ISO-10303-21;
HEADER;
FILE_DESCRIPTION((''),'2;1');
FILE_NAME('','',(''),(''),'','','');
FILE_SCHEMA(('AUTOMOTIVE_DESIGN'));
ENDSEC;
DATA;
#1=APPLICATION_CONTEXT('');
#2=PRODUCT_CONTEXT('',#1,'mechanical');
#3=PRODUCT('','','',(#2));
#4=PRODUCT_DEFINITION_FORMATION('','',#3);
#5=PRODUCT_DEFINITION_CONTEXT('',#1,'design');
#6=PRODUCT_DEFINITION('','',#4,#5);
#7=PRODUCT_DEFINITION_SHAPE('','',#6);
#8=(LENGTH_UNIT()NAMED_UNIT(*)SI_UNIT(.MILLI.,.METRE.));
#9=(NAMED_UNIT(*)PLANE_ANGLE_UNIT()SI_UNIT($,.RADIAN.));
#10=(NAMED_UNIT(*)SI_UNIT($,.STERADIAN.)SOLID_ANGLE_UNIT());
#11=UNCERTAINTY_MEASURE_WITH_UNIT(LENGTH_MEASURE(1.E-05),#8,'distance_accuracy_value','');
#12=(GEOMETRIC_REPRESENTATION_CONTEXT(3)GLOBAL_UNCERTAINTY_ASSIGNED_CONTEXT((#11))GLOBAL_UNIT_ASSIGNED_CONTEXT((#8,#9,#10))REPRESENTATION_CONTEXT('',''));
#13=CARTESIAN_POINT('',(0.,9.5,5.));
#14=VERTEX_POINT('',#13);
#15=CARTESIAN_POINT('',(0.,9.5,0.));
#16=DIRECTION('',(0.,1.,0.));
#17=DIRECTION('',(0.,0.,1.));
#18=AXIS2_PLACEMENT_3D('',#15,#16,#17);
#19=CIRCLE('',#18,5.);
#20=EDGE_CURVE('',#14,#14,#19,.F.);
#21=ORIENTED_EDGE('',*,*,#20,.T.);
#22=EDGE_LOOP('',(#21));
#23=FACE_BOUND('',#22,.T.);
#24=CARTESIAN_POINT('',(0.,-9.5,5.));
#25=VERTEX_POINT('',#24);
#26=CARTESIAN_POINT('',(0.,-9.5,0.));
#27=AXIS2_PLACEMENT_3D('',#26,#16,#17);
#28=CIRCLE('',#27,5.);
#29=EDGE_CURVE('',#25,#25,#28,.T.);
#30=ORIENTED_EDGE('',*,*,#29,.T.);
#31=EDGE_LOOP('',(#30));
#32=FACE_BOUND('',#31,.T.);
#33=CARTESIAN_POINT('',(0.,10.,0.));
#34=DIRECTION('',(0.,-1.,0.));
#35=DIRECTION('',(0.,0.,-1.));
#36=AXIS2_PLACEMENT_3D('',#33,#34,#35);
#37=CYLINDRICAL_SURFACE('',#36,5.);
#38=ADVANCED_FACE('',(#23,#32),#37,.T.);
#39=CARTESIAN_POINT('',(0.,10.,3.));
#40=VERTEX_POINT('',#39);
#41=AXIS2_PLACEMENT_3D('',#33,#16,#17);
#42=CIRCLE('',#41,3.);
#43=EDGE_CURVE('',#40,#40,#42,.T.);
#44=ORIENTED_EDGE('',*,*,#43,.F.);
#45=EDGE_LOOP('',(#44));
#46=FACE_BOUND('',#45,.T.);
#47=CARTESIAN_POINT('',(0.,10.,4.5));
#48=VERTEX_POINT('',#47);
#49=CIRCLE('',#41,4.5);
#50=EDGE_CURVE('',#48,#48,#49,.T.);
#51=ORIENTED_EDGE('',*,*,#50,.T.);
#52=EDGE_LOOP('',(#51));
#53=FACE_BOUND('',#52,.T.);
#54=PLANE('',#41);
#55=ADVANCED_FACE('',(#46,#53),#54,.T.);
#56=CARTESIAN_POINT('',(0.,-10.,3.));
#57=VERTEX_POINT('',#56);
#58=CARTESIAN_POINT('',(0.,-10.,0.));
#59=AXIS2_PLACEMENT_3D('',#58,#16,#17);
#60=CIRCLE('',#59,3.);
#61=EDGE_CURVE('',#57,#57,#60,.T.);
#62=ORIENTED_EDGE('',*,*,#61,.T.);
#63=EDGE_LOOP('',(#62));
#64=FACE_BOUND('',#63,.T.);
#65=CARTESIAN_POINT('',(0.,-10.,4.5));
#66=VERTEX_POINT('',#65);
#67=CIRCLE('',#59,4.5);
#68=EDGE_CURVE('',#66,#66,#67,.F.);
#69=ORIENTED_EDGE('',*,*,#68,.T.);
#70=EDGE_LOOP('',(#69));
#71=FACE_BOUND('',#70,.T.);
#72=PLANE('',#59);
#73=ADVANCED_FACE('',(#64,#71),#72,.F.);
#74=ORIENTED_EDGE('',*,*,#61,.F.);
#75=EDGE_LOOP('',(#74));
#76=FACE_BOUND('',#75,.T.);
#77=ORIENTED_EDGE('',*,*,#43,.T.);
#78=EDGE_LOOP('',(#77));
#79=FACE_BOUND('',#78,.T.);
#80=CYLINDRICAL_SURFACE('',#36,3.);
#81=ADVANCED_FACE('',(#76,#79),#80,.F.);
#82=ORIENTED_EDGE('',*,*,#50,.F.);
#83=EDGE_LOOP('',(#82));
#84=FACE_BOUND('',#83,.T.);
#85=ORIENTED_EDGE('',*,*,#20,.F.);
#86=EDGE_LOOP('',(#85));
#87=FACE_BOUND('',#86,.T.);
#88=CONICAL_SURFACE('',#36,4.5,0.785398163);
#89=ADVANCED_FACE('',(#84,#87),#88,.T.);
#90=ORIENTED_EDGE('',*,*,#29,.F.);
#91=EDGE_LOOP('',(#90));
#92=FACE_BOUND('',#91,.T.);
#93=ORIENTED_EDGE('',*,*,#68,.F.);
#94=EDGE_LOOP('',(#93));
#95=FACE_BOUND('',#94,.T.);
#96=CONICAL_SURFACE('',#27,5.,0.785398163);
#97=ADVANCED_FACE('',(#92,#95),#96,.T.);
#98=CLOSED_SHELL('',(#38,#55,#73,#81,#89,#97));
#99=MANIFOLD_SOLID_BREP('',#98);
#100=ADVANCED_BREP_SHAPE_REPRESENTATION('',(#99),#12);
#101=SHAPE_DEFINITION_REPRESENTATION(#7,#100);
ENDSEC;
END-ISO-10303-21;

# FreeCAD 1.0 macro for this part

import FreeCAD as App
import Part
import Sketcher

V = App.Vector


def edges_at(feature, points):
    """Names of the edges that pass closest to the given points."""
    edges = feature.Shape.Edges
    near = lambda p: min(range(len(edges)), key=lambda i: edges[i].distToShape(Part.Vertex(*p))[0])
    return sorted({f"Edge{near(p) + 1}" for p in points})

doc = App.newDocument("Part")
body = doc.addObject("PartDesign::Body", "Body")

# Sketch on XZ plane
sketch1 = body.newObject("Sketcher::SketchObject", "Sketch")
sketch1.AttachmentSupport = (doc.getObject("XZ_Plane"), [""])
sketch1.MapMode = "FlatFace"
sketch1.addGeometry(Part.Circle(V(0, 0, 0), V(0, 0, 1), 5), False)
sketch1.addGeometry(Part.Circle(V(0, 0, 0), V(0, 0, 1), 3), False)
sketch1.addConstraint(Sketcher.Constraint("Coincident", 0, 3, -1, 1))
sketch1.addConstraint(Sketcher.Constraint("Coincident", 1, 3, -1, 1))
sketch1.addConstraint(Sketcher.Constraint("Diameter", 0, 10.0))
sketch1.addConstraint(Sketcher.Constraint("Diameter", 1, 6.0))
pad1 = body.newObject("PartDesign::Pad", "Pad")
pad1.Profile = sketch1
pad1.Length = 20
pad1.Midplane = True
doc.recompute()

chamfer = body.newObject("PartDesign::Chamfer", "Chamfer")
chamfer.Base = (pad1, edges_at(pad1, [(0, -10, -5), (0, 10, -5)]))
chamfer.Size = 0.5

doc.recompute()
